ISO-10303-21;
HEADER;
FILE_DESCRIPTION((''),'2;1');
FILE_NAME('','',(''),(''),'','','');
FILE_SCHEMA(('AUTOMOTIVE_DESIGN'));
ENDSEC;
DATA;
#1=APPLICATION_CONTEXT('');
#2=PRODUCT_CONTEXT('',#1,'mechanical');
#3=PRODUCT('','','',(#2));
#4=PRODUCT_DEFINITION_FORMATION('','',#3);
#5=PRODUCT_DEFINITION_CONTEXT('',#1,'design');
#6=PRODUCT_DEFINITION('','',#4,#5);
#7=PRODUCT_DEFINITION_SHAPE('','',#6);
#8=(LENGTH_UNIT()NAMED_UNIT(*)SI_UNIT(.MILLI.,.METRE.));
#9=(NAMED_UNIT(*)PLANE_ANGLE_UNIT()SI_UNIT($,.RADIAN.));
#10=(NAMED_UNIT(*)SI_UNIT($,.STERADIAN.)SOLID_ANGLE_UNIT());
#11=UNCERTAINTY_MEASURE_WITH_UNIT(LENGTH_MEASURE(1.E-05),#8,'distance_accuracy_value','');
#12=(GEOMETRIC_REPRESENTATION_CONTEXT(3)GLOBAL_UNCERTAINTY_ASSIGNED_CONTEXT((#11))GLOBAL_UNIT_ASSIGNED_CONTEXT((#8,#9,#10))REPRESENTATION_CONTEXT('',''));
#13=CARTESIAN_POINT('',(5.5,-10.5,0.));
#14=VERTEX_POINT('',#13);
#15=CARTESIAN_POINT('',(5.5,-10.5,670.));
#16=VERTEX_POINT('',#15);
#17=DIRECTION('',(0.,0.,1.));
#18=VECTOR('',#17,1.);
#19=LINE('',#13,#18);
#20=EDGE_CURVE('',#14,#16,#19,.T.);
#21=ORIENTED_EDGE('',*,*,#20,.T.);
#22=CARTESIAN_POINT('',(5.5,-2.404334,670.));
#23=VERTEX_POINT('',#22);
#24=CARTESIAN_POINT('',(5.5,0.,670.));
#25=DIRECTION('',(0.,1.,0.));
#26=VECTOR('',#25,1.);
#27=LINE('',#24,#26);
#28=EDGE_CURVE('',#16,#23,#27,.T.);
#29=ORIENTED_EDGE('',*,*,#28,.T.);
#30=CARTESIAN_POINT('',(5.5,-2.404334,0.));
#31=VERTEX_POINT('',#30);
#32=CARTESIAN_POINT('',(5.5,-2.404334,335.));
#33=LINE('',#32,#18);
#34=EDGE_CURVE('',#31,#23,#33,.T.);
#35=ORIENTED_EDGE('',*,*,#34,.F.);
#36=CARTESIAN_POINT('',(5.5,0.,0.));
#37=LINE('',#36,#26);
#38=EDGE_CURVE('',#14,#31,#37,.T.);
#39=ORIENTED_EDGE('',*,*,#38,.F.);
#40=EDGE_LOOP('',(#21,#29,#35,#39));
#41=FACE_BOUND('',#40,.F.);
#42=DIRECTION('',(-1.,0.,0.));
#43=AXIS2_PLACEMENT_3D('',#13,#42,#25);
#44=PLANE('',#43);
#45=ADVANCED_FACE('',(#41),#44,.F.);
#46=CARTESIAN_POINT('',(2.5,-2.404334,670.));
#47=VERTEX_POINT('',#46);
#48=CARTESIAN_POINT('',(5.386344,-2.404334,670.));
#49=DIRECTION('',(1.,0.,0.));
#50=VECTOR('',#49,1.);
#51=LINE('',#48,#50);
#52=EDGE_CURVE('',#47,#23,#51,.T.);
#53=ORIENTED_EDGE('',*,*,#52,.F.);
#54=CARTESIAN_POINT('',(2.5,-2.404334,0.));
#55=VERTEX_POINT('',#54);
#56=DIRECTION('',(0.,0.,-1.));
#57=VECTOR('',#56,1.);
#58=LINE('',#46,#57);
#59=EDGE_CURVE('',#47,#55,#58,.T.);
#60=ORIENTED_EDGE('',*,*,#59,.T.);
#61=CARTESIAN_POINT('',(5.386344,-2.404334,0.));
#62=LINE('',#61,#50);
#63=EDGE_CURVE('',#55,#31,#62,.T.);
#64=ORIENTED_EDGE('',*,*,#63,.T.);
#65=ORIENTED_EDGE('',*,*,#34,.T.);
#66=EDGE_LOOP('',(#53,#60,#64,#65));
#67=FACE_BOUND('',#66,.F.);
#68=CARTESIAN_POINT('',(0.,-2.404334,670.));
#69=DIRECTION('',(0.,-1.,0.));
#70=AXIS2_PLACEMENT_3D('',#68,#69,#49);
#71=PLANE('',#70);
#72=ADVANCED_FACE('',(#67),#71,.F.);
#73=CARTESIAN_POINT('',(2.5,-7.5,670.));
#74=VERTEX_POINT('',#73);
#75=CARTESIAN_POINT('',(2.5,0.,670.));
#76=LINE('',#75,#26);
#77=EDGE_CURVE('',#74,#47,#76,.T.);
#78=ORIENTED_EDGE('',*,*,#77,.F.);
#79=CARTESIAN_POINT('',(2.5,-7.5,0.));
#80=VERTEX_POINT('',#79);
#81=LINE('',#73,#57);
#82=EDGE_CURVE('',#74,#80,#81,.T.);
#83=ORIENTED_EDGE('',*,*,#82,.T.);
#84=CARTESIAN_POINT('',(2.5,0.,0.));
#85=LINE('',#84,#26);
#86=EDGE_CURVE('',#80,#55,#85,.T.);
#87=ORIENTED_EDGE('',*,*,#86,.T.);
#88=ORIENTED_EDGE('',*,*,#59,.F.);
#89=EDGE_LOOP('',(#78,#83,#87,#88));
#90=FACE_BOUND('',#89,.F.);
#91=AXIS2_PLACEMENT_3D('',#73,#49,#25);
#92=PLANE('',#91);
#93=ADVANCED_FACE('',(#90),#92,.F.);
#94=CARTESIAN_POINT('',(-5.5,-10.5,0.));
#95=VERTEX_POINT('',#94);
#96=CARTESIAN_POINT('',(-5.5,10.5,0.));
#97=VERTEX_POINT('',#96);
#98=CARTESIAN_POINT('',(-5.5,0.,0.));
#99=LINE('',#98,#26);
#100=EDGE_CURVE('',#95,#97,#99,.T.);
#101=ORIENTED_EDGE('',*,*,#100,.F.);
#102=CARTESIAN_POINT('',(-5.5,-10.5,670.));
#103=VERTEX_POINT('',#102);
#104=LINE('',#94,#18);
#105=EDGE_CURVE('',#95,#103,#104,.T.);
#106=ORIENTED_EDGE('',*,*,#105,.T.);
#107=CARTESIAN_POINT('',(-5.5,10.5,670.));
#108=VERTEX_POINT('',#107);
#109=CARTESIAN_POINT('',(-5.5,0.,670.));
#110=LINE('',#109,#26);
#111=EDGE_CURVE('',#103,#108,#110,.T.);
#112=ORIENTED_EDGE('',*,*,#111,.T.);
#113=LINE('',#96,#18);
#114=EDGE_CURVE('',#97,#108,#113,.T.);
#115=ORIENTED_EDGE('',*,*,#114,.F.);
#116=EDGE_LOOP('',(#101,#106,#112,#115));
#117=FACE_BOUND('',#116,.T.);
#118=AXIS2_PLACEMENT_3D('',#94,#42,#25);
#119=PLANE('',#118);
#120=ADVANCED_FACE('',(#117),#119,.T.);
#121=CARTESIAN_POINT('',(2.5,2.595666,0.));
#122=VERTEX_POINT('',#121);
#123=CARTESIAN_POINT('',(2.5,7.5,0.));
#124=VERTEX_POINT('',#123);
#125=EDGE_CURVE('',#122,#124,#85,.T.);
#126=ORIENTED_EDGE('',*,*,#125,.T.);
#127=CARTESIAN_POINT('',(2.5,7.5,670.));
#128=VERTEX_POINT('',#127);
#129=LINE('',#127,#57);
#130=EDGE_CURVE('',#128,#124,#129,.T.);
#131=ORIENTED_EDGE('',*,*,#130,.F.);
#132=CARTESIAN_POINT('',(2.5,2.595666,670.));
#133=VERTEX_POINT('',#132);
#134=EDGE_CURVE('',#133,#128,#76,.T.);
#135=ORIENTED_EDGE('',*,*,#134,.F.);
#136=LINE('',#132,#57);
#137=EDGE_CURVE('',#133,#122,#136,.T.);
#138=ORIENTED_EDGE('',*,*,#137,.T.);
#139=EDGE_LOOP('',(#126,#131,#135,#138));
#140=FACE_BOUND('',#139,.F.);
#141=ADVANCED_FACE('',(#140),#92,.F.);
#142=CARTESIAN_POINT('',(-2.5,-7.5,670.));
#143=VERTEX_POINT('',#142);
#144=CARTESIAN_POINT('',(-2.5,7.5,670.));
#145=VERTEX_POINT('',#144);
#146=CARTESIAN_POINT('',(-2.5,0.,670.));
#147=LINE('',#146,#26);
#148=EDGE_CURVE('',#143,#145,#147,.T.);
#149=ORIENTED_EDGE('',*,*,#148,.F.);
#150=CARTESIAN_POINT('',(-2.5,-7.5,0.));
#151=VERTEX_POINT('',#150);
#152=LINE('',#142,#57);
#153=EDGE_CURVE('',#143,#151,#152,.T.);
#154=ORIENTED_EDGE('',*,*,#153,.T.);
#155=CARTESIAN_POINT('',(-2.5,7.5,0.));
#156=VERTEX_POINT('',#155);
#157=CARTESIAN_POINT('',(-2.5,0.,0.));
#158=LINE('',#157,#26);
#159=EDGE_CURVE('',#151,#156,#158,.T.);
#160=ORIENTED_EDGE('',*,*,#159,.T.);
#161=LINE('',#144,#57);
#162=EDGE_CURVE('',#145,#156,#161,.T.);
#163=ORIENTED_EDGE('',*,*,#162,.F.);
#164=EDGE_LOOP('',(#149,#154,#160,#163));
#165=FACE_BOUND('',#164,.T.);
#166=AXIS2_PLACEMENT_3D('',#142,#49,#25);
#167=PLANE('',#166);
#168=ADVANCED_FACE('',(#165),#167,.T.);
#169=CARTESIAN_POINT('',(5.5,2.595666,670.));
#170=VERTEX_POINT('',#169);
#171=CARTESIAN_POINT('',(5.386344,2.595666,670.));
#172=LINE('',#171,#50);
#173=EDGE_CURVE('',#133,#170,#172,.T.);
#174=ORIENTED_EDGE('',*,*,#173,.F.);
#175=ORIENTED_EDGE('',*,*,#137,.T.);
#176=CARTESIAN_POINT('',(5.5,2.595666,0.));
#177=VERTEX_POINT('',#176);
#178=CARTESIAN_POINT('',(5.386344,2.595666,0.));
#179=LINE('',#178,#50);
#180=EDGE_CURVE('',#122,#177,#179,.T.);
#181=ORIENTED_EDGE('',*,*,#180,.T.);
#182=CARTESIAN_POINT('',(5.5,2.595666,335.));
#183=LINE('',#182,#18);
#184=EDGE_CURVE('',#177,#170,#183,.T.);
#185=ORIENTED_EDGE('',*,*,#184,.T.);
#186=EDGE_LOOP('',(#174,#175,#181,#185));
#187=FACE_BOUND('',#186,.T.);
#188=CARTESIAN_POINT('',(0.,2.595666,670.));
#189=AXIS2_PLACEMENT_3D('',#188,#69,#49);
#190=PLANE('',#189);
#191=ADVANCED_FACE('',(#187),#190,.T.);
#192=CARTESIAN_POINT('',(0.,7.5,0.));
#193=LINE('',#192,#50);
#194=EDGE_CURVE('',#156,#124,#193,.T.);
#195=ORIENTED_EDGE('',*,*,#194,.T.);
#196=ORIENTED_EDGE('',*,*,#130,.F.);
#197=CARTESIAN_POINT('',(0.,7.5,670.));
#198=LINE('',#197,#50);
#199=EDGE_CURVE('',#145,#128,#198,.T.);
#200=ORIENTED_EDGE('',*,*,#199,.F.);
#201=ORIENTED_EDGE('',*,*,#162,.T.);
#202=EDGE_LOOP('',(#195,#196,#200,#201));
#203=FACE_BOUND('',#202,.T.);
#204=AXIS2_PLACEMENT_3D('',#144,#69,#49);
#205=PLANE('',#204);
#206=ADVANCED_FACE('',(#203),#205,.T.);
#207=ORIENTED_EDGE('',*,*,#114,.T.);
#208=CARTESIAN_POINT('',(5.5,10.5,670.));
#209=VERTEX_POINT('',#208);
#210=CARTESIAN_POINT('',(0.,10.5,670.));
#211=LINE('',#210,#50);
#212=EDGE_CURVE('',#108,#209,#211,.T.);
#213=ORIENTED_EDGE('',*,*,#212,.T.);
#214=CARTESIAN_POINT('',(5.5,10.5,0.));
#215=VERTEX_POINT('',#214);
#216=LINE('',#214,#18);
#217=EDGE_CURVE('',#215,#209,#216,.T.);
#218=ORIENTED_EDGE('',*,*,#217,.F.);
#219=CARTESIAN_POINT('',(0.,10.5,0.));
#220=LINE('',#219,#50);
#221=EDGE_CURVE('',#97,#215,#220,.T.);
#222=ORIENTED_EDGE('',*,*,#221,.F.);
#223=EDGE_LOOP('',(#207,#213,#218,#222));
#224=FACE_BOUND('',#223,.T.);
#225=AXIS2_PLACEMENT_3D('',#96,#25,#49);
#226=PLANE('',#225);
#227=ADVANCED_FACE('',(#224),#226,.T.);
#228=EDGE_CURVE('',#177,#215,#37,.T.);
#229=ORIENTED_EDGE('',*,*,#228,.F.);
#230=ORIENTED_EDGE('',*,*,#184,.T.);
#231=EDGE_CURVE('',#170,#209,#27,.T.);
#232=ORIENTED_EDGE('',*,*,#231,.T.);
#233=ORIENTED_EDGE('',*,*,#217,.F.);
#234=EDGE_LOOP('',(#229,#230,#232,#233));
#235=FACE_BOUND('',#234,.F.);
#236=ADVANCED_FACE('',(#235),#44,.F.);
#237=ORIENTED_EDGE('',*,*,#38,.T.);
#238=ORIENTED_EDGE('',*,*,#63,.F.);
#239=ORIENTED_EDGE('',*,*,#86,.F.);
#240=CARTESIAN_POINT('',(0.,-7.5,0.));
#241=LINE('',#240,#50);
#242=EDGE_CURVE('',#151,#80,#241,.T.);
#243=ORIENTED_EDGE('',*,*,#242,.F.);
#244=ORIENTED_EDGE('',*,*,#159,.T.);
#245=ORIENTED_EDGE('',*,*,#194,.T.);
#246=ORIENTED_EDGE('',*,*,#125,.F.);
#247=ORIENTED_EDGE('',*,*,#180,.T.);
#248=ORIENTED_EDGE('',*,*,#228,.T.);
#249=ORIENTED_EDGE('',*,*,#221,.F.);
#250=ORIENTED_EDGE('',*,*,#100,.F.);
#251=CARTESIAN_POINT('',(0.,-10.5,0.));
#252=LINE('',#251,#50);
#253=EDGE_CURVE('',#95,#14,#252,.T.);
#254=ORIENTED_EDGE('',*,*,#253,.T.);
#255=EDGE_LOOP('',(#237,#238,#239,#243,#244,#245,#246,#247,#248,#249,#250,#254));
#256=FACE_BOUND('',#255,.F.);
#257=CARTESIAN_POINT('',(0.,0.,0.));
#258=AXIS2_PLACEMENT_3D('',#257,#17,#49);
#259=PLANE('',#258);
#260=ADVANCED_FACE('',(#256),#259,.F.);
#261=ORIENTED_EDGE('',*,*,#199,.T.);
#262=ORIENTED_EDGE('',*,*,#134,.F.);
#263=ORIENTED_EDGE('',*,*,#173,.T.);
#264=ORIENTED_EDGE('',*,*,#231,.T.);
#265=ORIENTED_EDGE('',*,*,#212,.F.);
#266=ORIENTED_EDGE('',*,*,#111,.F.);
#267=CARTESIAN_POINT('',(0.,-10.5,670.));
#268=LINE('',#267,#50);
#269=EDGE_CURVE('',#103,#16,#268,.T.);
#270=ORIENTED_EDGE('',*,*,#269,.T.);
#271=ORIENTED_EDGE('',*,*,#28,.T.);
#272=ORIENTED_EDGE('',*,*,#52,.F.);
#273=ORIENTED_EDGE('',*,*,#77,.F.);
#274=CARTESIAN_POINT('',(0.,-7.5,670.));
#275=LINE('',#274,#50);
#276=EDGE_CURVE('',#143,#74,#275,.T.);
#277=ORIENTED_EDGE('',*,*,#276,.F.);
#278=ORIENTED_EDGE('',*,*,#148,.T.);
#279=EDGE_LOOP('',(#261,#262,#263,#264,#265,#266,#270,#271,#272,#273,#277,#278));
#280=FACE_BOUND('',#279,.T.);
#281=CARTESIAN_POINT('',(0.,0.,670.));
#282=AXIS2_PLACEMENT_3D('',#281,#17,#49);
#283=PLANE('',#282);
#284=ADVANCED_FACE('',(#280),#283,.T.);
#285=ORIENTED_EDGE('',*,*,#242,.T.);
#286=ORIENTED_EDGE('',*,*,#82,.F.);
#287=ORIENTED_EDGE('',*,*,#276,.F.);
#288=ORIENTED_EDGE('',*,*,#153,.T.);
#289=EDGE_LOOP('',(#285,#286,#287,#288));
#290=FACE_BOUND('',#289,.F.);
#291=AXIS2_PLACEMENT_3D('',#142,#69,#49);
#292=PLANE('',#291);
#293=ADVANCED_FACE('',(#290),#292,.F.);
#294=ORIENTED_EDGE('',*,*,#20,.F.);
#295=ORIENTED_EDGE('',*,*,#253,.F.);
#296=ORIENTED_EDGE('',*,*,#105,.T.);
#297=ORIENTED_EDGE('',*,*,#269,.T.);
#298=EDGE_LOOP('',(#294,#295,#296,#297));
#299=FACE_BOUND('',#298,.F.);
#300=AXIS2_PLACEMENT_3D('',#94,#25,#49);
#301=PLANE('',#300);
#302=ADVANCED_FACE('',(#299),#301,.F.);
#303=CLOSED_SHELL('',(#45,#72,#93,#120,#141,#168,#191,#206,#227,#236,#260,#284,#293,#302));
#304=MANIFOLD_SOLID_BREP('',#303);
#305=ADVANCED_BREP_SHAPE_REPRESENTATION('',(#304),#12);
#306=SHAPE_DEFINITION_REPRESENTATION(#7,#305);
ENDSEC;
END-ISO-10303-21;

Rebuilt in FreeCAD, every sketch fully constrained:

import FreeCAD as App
import Part
import Sketcher

V = App.Vector
Q = App.Units.Quantity

doc = App.newDocument("Part")
params = doc.addObject("Spreadsheet::Sheet", "Params")
for row, (alias, value) in enumerate([
    ("sketch1_width", "11 mm"),
    ("sketch1_height", "21 mm"),
    ("pad1_length", "670 mm"),
    ("sketch2_width", "5 mm"),
    ("sketch2_height", "15 mm"),
    ("pocket1_length", "670 mm"),
    ("sketch3_height", "5 mm"),
    ("pocket2_length", "670 mm"),
], start=1):
    params.set(f"A{row}", alias)
    params.set(f"B{row}", "=" + value)
    params.setAlias(f"B{row}", alias)

body = doc.addObject("PartDesign::Body", "Body")

# Sketch on XY plane
sketch1 = body.newObject("Sketcher::SketchObject", "Sketch")
sketch1.AttachmentSupport = (doc.getObject("XY_Plane"), [""])
sketch1.MapMode = "FlatFace"
sketch1.addGeometry(Part.LineSegment(V(-6, 10, 0), V(-6, -10, 0)), False)
sketch1.addGeometry(Part.LineSegment(V(-6, -10, 0), V(6, -10, 0)), False)
sketch1.addGeometry(Part.LineSegment(V(6, -10, 0), V(6, 10, 0)), False)
sketch1.addGeometry(Part.LineSegment(V(6, 10, 0), V(-6, 10, 0)), False)
sketch1.addConstraint(Sketcher.Constraint("Coincident", 0, 2, 1, 1))
sketch1.addConstraint(Sketcher.Constraint("Coincident", 1, 2, 2, 1))
sketch1.addConstraint(Sketcher.Constraint("Coincident", 2, 2, 3, 1))
sketch1.addConstraint(Sketcher.Constraint("Coincident", 3, 2, 0, 1))
sketch1.addConstraint(Sketcher.Constraint("Vertical", 0))
sketch1.addConstraint(Sketcher.Constraint("Horizontal", 1))
sketch1.addConstraint(Sketcher.Constraint("Vertical", 2))
sketch1.addConstraint(Sketcher.Constraint("Horizontal", 3))
sketch1.addConstraint(Sketcher.Constraint("Symmetric", 0, 2, 2, 2, -1, 1))
sketch1.addConstraint(Sketcher.Constraint("DistanceX", 1, 1, 1, 2, Q("11 mm")))
sketch1.addConstraint(Sketcher.Constraint("DistanceY", 0, 2, 0, 1, Q("21 mm")))
sketch1.setExpression("Constraints[9]", "Params.sketch1_width")
sketch1.setExpression("Constraints[10]", "Params.sketch1_height")
pad1 = body.newObject("PartDesign::Pad", "Pad")
pad1.Profile = sketch1
pad1.setExpression("Length", "Params.pad1_length")

# Sketch on XY plane
sketch2 = body.newObject("Sketcher::SketchObject", "Sketch001")
sketch2.AttachmentSupport = (doc.getObject("XY_Plane"), [""])
sketch2.MapMode = "FlatFace"
sketch2.AttachmentOffset = App.Placement(V(0, 0, 670), App.Rotation())
sketch2.addGeometry(Part.LineSegment(V(-2, 8, 0), V(-2, -8, 0)), False)
sketch2.addGeometry(Part.LineSegment(V(-2, -8, 0), V(2, -8, 0)), False)
sketch2.addGeometry(Part.LineSegment(V(2, -8, 0), V(2, 8, 0)), False)
sketch2.addGeometry(Part.LineSegment(V(2, 8, 0), V(-2, 8, 0)), False)
sketch2.addConstraint(Sketcher.Constraint("Coincident", 0, 2, 1, 1))
sketch2.addConstraint(Sketcher.Constraint("Coincident", 1, 2, 2, 1))
sketch2.addConstraint(Sketcher.Constraint("Coincident", 2, 2, 3, 1))
sketch2.addConstraint(Sketcher.Constraint("Coincident", 3, 2, 0, 1))
sketch2.addConstraint(Sketcher.Constraint("Vertical", 0))
sketch2.addConstraint(Sketcher.Constraint("Horizontal", 1))
sketch2.addConstraint(Sketcher.Constraint("Vertical", 2))
sketch2.addConstraint(Sketcher.Constraint("Horizontal", 3))
sketch2.addConstraint(Sketcher.Constraint("Symmetric", 0, 2, 2, 2, -1, 1))
sketch2.addConstraint(Sketcher.Constraint("DistanceX", 1, 1, 1, 2, Q("5 mm")))
sketch2.addConstraint(Sketcher.Constraint("DistanceY", 0, 2, 0, 1, Q("15 mm")))
sketch2.setExpression("Constraints[9]", "Params.sketch2_width")
sketch2.setExpression("Constraints[10]", "Params.sketch2_height")
pocket1 = body.newObject("PartDesign::Pocket", "Pocket")
pocket1.Profile = sketch2
pocket1.setExpression("Length", "Params.pocket1_length")

# Sketch on XY plane
sketch3 = body.newObject("Sketcher::SketchObject", "Sketch002")
sketch3.AttachmentSupport = (doc.getObject("XY_Plane"), [""])
sketch3.MapMode = "FlatFace"
sketch3.AttachmentOffset = App.Placement(V(0, 0, 670), App.Rotation())
sketch3.addGeometry(Part.LineSegment(V(0, 3, 0), V(0, -2, 0)), False)
sketch3.addGeometry(Part.LineSegment(V(0, -2, 0), V(11, -2, 0)), False)
sketch3.addGeometry(Part.LineSegment(V(11, -2, 0), V(11, 3, 0)), False)
sketch3.addGeometry(Part.LineSegment(V(11, 3, 0), V(0, 3, 0)), False)
sketch3.addConstraint(Sketcher.Constraint("Coincident", 0, 2, 1, 1))
sketch3.addConstraint(Sketcher.Constraint("Coincident", 1, 2, 2, 1))
sketch3.addConstraint(Sketcher.Constraint("Coincident", 2, 2, 3, 1))
sketch3.addConstraint(Sketcher.Constraint("Coincident", 3, 2, 0, 1))
sketch3.addConstraint(Sketcher.Constraint("Vertical", 0))
sketch3.addConstraint(Sketcher.Constraint("Horizontal", 1))
sketch3.addConstraint(Sketcher.Constraint("Vertical", 2))
sketch3.addConstraint(Sketcher.Constraint("Horizontal", 3))
sketch3.addConstraint(Sketcher.Constraint("PointOnObject", 0, 2, -2))
sketch3.addConstraint(Sketcher.Constraint("DistanceY", 0, 2, 0, 1, Q("5 mm")))
sketch3.addConstraint(Sketcher.Constraint("DistanceX", 1, 1, 1, 2, Q("10.772688 mm")))
sketch3.addConstraint(Sketcher.Constraint("DistanceY", 0, 2, -1, 1, Q("2.404334 mm")))
sketch3.setExpression("Constraints[9]", "Params.sketch3_height")
pocket2 = body.newObject("PartDesign::Pocket", "Pocket001")
pocket2.Profile = sketch3
pocket2.setExpression("Length", "Params.pocket2_length")

doc.recompute()
